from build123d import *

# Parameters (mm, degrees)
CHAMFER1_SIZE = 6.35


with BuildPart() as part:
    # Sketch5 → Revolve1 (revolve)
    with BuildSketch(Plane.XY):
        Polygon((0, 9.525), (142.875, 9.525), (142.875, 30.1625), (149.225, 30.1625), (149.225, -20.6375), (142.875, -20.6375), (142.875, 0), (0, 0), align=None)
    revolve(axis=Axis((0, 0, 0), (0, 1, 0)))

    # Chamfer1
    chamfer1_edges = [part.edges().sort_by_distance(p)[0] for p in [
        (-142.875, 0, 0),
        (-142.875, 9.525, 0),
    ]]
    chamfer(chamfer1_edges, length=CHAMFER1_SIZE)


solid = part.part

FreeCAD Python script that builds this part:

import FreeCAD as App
import Part
import Sketcher
from FreeCAD import Vector
Q = App.Units.Quantity


def edges_at(feature, points):
    """Names of the edges that pass closest to the given points."""
    edges = feature.Shape.Edges
    near = lambda p: min(range(len(edges)), key=lambda i: edges[i].distToShape(Part.Vertex(*p))[0])
    return sorted({f"Edge{near(p) + 1}" for p in points})


def add_polygon(sketch, points):
    """Adds a closed chain of lines whose ends are joined by coincident constraints."""
    first, n = sketch.GeometryCount, len(points)
    for a, b in zip(points, points[1:] + points[:1]):
        sketch.addGeometry(Part.LineSegment(App.Vector(*a, 0), App.Vector(*b, 0)), False)
    for i in range(n):
        sketch.addConstraint(Sketcher.Constraint("Coincident", first + i, 2, first + (i + 1) % n, 1))

doc = App.newDocument("Part")
body = doc.addObject("PartDesign::Body", "Body")

# Sketch on XY plane
sketch1 = doc.addObject("Sketcher::SketchObject", "Sketch")
body.addObject(sketch1)
sketch1.AttachmentSupport = (doc.XY_Plane, [""])
sketch1.MapMode = "FlatFace"
add_polygon(sketch1, [(143, 10), (0, 10), (0, 0), (143, 0), (143, -21), (149, -21), (149, 30), (143, 30)])  # lines 0-7
sketch1.addConstraint([
    Sketcher.Constraint("Horizontal", 0),
    Sketcher.Constraint("Vertical", 1),
    Sketcher.Constraint("Horizontal", 2),
    Sketcher.Constraint("Vertical", 3),
    Sketcher.Constraint("Horizontal", 4),
    Sketcher.Constraint("Vertical", 5),
    Sketcher.Constraint("Horizontal", 6),
    Sketcher.Constraint("Vertical", 7),
    Sketcher.Constraint("Coincident", 1, 2, -1, 1),
    Sketcher.Constraint("Vertical", 3, 2, 6, 2),
    Sketcher.Constraint("Equal", 3, 7),
    Sketcher.Constraint("DistanceY", 5, 1, 5, 2, Q("2 in")),
    Sketcher.Constraint("DistanceX", 4, 1, 4, 2, Q("0.25 in")),
    Sketcher.Constraint("DistanceX", 0, 2, 0, 1, Q("5.625 in")),
    Sketcher.Constraint("DistanceY", 1, 2, 1, 1, Q("0.375 in")),
])
revolution = doc.addObject("PartDesign::Revolution", "Revolution")
body.addObject(revolution)
revolution.Profile = sketch1
revolution.ReferenceAxis = (sketch1, ["V_Axis"])
revolution.Angle = 360
doc.recompute()

chamfer = doc.addObject("PartDesign::Chamfer", "Chamfer")
body.addObject(chamfer)
chamfer.Base = (revolution, edges_at(revolution, [(-142.875, 0, 0), (-142.875, 9.525, 0)]))
chamfer.Size = Q("0.25 in")

doc.recompute()
